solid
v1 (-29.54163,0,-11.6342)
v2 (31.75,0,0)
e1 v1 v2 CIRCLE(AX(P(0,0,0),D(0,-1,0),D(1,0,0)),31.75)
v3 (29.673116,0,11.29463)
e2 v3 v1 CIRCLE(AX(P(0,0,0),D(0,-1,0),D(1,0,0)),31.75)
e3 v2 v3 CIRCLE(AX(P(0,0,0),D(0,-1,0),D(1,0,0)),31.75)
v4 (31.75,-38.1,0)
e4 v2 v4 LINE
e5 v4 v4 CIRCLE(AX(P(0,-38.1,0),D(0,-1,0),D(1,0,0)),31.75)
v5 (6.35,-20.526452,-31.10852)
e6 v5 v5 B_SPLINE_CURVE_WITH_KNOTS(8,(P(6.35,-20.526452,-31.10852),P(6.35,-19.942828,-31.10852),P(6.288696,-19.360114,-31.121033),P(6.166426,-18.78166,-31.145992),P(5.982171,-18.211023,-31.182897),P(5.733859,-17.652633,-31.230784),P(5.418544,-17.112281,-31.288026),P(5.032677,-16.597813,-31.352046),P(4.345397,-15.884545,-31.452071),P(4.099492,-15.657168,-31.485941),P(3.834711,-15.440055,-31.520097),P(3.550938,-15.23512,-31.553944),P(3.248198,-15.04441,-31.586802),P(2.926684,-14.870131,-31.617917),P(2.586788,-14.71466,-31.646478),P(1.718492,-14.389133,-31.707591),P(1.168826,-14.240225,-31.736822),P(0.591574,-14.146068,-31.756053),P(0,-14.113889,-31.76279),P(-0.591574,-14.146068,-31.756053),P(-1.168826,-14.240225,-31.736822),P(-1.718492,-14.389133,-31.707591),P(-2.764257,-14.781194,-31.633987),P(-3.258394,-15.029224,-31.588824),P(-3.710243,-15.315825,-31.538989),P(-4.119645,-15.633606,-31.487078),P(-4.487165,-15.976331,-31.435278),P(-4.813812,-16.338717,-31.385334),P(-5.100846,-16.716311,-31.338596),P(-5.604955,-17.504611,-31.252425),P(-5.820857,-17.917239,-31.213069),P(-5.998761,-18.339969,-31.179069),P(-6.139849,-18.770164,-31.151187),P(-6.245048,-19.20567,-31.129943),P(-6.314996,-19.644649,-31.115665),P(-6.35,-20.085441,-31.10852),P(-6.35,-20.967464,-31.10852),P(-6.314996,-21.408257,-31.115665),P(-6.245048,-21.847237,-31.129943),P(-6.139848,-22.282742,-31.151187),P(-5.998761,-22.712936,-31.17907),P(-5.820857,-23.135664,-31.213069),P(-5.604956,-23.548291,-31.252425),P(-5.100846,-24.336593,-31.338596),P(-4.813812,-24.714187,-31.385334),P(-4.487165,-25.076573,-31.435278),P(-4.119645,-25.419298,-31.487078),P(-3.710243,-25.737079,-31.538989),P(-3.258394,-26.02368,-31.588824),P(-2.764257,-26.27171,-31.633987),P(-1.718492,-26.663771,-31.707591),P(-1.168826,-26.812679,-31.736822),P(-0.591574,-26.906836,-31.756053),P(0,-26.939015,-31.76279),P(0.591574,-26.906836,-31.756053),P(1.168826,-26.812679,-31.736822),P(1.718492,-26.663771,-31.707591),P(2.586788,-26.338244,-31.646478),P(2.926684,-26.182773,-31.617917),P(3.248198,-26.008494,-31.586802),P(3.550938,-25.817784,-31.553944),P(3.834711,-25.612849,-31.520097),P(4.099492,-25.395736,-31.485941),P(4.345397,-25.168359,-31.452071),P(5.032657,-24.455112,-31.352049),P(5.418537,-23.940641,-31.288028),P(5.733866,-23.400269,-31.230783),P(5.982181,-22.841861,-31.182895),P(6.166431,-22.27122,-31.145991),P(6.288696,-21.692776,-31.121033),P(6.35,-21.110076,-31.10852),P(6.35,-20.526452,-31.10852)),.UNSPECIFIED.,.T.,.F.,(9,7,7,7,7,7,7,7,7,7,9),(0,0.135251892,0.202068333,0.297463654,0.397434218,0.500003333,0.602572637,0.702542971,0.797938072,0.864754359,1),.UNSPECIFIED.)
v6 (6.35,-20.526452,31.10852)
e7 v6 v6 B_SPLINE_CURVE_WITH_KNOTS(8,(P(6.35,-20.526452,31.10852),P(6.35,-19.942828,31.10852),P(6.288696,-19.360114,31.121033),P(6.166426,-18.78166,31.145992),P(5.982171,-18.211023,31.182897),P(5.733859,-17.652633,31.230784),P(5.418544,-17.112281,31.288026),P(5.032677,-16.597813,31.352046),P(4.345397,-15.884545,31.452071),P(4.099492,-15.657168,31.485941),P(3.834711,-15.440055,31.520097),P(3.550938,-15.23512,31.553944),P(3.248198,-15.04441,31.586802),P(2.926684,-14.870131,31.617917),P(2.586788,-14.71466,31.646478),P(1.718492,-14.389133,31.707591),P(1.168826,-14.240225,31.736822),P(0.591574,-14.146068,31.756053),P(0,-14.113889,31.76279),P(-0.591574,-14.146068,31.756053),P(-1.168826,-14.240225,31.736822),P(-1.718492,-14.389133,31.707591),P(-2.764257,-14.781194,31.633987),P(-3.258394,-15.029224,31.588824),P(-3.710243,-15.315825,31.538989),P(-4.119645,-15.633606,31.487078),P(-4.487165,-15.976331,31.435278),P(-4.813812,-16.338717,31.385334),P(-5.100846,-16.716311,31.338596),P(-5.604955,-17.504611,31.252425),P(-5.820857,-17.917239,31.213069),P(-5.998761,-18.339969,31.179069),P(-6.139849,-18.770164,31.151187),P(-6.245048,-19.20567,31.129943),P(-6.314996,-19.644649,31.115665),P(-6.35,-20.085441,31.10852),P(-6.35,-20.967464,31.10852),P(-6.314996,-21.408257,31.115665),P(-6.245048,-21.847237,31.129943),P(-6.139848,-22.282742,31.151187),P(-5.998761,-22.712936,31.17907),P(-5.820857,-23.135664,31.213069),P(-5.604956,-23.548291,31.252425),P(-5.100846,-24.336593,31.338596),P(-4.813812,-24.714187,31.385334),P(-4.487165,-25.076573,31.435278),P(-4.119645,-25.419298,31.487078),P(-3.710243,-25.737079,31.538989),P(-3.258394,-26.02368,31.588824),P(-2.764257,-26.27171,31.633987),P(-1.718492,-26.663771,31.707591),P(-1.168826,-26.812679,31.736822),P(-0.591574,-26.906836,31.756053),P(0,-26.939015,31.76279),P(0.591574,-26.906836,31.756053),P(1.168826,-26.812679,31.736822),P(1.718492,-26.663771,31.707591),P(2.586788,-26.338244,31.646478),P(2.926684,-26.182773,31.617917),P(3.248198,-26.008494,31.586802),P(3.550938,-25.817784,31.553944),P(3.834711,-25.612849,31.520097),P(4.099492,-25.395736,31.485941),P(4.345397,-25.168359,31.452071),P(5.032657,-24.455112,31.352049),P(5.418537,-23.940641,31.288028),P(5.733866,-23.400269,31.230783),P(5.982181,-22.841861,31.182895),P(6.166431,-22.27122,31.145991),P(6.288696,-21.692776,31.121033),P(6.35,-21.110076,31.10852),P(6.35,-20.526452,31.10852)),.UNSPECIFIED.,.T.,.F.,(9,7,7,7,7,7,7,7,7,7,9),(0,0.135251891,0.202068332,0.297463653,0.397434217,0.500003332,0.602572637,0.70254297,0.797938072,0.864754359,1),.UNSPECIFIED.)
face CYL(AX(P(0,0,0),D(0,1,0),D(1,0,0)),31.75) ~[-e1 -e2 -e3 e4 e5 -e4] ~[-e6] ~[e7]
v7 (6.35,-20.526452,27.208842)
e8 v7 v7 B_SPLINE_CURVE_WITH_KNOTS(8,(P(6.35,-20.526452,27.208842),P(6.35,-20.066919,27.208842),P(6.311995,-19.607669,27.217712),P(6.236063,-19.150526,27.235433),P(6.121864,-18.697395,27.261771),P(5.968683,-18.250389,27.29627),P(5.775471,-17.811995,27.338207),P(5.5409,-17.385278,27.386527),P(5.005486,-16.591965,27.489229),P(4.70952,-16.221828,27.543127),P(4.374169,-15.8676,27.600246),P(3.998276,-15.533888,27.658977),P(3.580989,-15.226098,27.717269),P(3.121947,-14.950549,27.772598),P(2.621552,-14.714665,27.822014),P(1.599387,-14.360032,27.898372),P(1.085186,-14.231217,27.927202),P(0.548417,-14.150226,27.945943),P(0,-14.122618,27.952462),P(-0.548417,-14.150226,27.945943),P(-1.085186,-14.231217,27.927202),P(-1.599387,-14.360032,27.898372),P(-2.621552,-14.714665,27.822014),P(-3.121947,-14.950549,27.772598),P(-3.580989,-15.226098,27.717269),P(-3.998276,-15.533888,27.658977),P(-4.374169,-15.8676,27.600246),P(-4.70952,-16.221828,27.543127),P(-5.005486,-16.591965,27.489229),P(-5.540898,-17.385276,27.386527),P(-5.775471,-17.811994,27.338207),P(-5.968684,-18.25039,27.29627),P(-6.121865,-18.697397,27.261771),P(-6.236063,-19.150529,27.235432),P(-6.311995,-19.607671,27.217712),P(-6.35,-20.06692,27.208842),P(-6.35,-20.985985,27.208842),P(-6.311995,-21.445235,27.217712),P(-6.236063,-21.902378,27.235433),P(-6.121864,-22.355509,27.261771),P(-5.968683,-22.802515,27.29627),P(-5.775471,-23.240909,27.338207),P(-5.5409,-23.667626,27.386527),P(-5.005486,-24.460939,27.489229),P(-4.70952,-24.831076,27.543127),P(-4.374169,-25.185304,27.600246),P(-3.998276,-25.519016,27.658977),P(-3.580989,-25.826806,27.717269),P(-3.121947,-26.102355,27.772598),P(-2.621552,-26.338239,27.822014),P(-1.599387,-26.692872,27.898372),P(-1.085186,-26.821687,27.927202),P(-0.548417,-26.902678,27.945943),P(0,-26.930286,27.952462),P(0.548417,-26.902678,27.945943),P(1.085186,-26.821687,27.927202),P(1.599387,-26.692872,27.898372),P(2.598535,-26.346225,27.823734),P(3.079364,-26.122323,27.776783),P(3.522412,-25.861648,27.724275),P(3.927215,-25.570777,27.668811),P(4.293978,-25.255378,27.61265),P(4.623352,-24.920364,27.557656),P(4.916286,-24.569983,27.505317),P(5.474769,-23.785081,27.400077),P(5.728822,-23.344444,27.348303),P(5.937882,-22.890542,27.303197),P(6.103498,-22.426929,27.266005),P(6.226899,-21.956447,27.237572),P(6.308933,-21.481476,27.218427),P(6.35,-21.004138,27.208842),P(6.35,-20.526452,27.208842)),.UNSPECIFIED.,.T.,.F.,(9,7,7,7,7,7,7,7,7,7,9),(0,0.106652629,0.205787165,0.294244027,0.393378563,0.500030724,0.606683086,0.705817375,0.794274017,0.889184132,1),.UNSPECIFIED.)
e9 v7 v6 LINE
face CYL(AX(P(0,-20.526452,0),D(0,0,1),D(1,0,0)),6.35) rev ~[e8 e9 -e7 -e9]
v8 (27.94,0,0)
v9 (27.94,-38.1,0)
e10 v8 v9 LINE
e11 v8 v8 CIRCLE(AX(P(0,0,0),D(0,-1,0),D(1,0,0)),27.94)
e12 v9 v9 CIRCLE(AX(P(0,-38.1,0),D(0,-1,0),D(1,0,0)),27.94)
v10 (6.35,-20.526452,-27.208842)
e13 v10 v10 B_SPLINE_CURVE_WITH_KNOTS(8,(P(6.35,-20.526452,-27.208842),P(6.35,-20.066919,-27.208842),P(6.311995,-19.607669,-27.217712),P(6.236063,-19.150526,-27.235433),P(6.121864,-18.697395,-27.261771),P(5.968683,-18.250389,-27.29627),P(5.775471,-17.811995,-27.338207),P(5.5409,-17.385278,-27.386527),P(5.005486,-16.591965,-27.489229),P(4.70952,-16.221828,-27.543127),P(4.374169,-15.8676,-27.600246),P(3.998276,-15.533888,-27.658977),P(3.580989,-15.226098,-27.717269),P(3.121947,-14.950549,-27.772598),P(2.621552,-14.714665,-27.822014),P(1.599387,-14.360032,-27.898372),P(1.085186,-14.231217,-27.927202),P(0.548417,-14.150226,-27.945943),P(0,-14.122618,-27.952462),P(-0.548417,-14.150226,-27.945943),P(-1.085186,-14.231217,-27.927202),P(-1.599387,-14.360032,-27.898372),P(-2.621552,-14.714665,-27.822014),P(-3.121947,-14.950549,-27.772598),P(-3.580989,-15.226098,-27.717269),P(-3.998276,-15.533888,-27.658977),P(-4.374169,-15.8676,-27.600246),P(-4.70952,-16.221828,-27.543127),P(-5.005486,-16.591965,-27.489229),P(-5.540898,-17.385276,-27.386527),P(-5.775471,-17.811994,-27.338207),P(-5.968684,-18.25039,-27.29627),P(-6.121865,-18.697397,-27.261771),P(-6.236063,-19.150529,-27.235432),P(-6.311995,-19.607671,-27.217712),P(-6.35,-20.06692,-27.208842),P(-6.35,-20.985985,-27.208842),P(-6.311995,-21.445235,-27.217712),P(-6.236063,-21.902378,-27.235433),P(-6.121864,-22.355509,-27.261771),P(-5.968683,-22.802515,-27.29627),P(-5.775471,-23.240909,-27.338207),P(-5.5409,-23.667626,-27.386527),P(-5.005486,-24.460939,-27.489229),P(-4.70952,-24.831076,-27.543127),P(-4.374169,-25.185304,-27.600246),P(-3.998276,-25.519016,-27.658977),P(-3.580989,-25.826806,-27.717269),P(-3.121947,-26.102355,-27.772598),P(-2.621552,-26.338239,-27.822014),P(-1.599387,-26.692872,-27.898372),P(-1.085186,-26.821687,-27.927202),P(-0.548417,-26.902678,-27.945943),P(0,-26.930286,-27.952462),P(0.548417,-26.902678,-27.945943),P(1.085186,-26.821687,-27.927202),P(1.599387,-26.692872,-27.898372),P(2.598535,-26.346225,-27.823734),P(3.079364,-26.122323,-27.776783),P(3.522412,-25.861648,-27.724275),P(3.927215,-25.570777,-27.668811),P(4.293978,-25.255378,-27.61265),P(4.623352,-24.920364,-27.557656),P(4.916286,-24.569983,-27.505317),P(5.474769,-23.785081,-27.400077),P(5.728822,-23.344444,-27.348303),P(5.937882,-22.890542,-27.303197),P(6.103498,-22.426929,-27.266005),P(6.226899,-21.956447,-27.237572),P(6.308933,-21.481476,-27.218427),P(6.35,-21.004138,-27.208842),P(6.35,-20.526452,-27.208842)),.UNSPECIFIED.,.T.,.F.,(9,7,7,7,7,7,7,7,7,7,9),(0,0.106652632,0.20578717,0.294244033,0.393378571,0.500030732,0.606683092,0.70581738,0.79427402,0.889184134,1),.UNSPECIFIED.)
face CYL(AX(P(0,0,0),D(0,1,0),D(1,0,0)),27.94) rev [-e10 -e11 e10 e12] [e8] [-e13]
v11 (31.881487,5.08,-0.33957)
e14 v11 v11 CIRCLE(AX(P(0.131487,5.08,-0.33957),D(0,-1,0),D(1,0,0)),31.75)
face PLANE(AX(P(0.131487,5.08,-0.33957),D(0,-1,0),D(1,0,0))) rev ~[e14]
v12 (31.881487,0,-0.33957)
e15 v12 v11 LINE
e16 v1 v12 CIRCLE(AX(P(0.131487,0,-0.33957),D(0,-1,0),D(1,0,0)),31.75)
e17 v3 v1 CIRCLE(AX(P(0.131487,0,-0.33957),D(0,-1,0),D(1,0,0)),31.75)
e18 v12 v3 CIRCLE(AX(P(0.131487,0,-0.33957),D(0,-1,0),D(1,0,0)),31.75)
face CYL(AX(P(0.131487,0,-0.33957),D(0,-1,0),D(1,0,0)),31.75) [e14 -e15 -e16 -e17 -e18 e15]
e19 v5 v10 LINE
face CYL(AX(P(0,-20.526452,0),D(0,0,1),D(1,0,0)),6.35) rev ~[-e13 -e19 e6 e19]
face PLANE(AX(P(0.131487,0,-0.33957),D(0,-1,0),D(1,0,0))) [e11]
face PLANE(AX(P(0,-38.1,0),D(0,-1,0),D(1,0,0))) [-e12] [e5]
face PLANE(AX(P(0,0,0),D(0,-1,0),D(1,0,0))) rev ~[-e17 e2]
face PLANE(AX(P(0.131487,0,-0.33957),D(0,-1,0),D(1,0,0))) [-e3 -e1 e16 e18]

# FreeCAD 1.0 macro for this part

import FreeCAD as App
import Part
import Sketcher

V = App.Vector
Q = App.Units.Quantity

doc = App.newDocument("Part")
body = doc.addObject("PartDesign::Body", "Body")

# Sketch on XZ plane
sketch1 = body.newObject("Sketcher::SketchObject", "Sketch")
sketch1.AttachmentSupport = (doc.getObject("XZ_Plane"), [""])
sketch1.MapMode = "FlatFace"
sketch1.addGeometry([
    Part.Circle(V(0, 0, 0), V(0, 0, 1), 31.75),
    Part.Circle(V(0, 0, 0), V(0, 0, 1), 27.94),
], False)
sketch1.addConstraint([
    Sketcher.Constraint("Coincident", 0, 3, -1, 1),
    Sketcher.Constraint("Coincident", 1, 3, -1, 1),
    Sketcher.Constraint("Diameter", 0, Q("2.5 in")),
    Sketcher.Constraint("Diameter", 1, Q("2.2 in")),
])
pad1 = body.newObject("PartDesign::Pad", "Pad")
pad1.Profile = sketch1
pad1.Length = Q("1.5 in")

# Sketch on XZ plane
sketch2 = body.newObject("Sketcher::SketchObject", "Sketch001")
sketch2.AttachmentSupport = (doc.getObject("XZ_Plane"), [""])
sketch2.MapMode = "FlatFace"
sketch2.addGeometry(Part.Circle(V(0.131487, -0.33957, 0), V(0, 0, 1), 31.75), False)
sketch2.addConstraint([
    Sketcher.Constraint("Diameter", 0, Q("2.5 in")),
    Sketcher.Constraint("DistanceY", 0, 3, -1, 1, Q("0.33957 mm")),
    Sketcher.Constraint("DistanceX", -1, 1, 0, 3, Q("0.131487 mm")),
])
pad2 = body.newObject("PartDesign::Pad", "Pad001")
pad2.Profile = sketch2
pad2.Length = Q("0.2 in")
pad2.Reversed = True

# Sketch on XY plane
sketch3 = body.newObject("Sketcher::SketchObject", "Sketch002")
sketch3.AttachmentSupport = (doc.getObject("XY_Plane"), [""])
sketch3.MapMode = "FlatFace"
sketch3.addGeometry(Part.Circle(V(0, -20.526452, 0), V(0, 0, 1), 6.35), False)
sketch3.addConstraint([
    Sketcher.Constraint("PointOnObject", 0, 3, -2),
    Sketcher.Constraint("Diameter", 0, Q("0.5 in")),
    Sketcher.Constraint("DistanceY", 0, 3, -1, 1, Q("20.526452 mm")),
])
pocket1 = body.newObject("PartDesign::Pocket", "Pocket")
pocket1.Profile = sketch3
pocket1.Length = Q("4.88 in")
pocket1.Midplane = True

doc.recompute()
